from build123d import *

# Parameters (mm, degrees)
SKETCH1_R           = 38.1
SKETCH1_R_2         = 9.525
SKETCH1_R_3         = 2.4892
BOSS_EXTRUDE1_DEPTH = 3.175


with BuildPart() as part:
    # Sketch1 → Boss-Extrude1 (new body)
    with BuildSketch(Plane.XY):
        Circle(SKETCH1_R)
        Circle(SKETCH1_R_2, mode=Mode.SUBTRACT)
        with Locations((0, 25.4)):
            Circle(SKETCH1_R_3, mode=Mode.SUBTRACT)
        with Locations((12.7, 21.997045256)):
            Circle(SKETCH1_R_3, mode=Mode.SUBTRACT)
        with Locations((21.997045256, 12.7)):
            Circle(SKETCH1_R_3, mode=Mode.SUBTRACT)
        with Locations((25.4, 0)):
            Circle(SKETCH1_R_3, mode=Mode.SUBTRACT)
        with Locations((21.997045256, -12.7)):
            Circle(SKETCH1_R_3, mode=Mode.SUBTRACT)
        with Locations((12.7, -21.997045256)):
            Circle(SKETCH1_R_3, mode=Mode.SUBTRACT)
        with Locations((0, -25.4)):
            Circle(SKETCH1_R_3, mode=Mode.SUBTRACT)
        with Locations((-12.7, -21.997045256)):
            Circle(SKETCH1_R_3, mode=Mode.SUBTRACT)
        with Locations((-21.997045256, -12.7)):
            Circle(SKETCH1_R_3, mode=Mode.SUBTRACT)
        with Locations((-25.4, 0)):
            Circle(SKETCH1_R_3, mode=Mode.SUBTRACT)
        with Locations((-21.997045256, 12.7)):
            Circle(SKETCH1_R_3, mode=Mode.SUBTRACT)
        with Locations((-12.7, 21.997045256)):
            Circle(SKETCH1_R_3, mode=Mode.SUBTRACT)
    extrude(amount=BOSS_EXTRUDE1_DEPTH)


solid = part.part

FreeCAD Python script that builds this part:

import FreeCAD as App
import Part
import Sketcher
Q = App.Units.Quantity

doc = App.newDocument("Part")
body = doc.addObject("PartDesign::Body", "Body")

# Sketch on XY plane
sketch1 = doc.addObject("Sketcher::SketchObject", "Sketch")
body.addObject(sketch1)
sketch1.AttachmentSupport = (doc.XY_Plane, [""])
sketch1.MapMode = "FlatFace"
sketch1.addGeometry(Part.Circle(App.Vector(0, 0, 0), App.Vector(0, 0, 1), 38.1), False)
sketch1.addGeometry(Part.Circle(App.Vector(-12.7, -22, 0), App.Vector(0, 0, 1), 2.5), False)
sketch1.addGeometry(Part.Circle(App.Vector(0, -25.4, 0), App.Vector(0, 0, 1), 2.5), False)
sketch1.addGeometry(Part.Circle(App.Vector(-22, -12.7, 0), App.Vector(0, 0, 1), 2.5), False)
sketch1.addGeometry(Part.Circle(App.Vector(12.7, -22, 0), App.Vector(0, 0, 1), 2.5), False)
sketch1.addGeometry(Part.Circle(App.Vector(22, -12.7, 0), App.Vector(0, 0, 1), 2.5), False)
sketch1.addGeometry(Part.Circle(App.Vector(-25.4, 0, 0), App.Vector(0, 0, 1), 2.5), False)
sketch1.addGeometry(Part.Circle(App.Vector(-22, 12.7, 0), App.Vector(0, 0, 1), 2.5), False)
sketch1.addGeometry(Part.Circle(App.Vector(-12.7, 22, 0), App.Vector(0, 0, 1), 2.5), False)
sketch1.addGeometry(Part.Circle(App.Vector(0, 25.4, 0), App.Vector(0, 0, 1), 2.5), False)
sketch1.addGeometry(Part.Circle(App.Vector(0, 0, 0), App.Vector(0, 0, 1), 9.5), False)
sketch1.addGeometry(Part.Circle(App.Vector(25.4, 0, 0), App.Vector(0, 0, 1), 2.5), False)
sketch1.addGeometry(Part.Circle(App.Vector(22, 12.7, 0), App.Vector(0, 0, 1), 2.5), False)
sketch1.addGeometry(Part.Circle(App.Vector(12.7, 22, 0), App.Vector(0, 0, 1), 2.5), False)
sketch1.addConstraint(Sketcher.Constraint("Coincident", 0, 3, -1, 1))
sketch1.addConstraint(Sketcher.Constraint("Coincident", 10, 3, -1, 1))
sketch1.addConstraint(Sketcher.Constraint("Equal", 1, 2))
sketch1.addConstraint(Sketcher.Constraint("Equal", 2, 3))
sketch1.addConstraint(Sketcher.Constraint("Equal", 3, 4))
sketch1.addConstraint(Sketcher.Constraint("Equal", 4, 5))
sketch1.addConstraint(Sketcher.Constraint("Equal", 5, 6))
sketch1.addConstraint(Sketcher.Constraint("Equal", 6, 7))
sketch1.addConstraint(Sketcher.Constraint("Equal", 7, 8))
sketch1.addConstraint(Sketcher.Constraint("Equal", 8, 9))
sketch1.addConstraint(Sketcher.Constraint("Equal", 9, 11))
sketch1.addConstraint(Sketcher.Constraint("Equal", 11, 12))
sketch1.addConstraint(Sketcher.Constraint("Equal", 12, 13))
sketch1.addConstraint(Sketcher.Constraint("Symmetric", 5, 3, 7, 3, -1, 1))
sketch1.addConstraint(Sketcher.Constraint("Symmetric", 4, 3, 8, 3, -1, 1))
sketch1.addConstraint(Sketcher.Constraint("Symmetric", 2, 3, 9, 3, -1, 1))
sketch1.addConstraint(Sketcher.Constraint("Symmetric", 6, 3, 11, 3, -1, 1))
sketch1.addConstraint(Sketcher.Constraint("Symmetric", 3, 3, 12, 3, -1, 1))
sketch1.addConstraint(Sketcher.Constraint("Symmetric", 1, 3, 13, 3, -1, 1))
sketch1.addConstraint(Sketcher.Constraint("Symmetric", 1, 3, 4, 3, -2))
sketch1.addConstraint(Sketcher.Constraint("Symmetric", 3, 3, 5, 3, -2))
sketch1.addConstraint(Sketcher.Constraint("PointOnObject", 2, 3, -2))
sketch1.addConstraint(Sketcher.Constraint("PointOnObject", 6, 3, -1))
sketch1.addConstraint(Sketcher.Constraint("Diameter", 0, Q("3 in")))
sketch1.addConstraint(Sketcher.Constraint("Diameter", 10, Q("0.75 in")))
sketch1.addConstraint(Sketcher.Constraint("Diameter", 1, Q("0.196 in")))
sketch1.addConstraint(Sketcher.Constraint("DistanceY", 2, 3, -1, 1, Q("1 in")))
sketch1.addConstraint(Sketcher.Constraint("DistanceX", 6, 3, -1, 1, Q("1 in")))
sketch1.addConstraint(Sketcher.Constraint("DistanceX", 1, 3, 4, 3, Q("1 in")))
sketch1.addConstraint(Sketcher.Constraint("DistanceY", 3, 3, 7, 3, Q("1 in")))
sketch1.addConstraint(Sketcher.Constraint("DistanceX", 3, 3, 5, 3, Q("43.994091 mm")))
sketch1.addConstraint(Sketcher.Constraint("DistanceY", 1, 3, 8, 3, Q("43.994091 mm")))
pad1 = doc.addObject("PartDesign::Pad", "Pad")
body.addObject(pad1)
pad1.Profile = sketch1
pad1.Length = Q("0.125 in")

doc.recompute()
